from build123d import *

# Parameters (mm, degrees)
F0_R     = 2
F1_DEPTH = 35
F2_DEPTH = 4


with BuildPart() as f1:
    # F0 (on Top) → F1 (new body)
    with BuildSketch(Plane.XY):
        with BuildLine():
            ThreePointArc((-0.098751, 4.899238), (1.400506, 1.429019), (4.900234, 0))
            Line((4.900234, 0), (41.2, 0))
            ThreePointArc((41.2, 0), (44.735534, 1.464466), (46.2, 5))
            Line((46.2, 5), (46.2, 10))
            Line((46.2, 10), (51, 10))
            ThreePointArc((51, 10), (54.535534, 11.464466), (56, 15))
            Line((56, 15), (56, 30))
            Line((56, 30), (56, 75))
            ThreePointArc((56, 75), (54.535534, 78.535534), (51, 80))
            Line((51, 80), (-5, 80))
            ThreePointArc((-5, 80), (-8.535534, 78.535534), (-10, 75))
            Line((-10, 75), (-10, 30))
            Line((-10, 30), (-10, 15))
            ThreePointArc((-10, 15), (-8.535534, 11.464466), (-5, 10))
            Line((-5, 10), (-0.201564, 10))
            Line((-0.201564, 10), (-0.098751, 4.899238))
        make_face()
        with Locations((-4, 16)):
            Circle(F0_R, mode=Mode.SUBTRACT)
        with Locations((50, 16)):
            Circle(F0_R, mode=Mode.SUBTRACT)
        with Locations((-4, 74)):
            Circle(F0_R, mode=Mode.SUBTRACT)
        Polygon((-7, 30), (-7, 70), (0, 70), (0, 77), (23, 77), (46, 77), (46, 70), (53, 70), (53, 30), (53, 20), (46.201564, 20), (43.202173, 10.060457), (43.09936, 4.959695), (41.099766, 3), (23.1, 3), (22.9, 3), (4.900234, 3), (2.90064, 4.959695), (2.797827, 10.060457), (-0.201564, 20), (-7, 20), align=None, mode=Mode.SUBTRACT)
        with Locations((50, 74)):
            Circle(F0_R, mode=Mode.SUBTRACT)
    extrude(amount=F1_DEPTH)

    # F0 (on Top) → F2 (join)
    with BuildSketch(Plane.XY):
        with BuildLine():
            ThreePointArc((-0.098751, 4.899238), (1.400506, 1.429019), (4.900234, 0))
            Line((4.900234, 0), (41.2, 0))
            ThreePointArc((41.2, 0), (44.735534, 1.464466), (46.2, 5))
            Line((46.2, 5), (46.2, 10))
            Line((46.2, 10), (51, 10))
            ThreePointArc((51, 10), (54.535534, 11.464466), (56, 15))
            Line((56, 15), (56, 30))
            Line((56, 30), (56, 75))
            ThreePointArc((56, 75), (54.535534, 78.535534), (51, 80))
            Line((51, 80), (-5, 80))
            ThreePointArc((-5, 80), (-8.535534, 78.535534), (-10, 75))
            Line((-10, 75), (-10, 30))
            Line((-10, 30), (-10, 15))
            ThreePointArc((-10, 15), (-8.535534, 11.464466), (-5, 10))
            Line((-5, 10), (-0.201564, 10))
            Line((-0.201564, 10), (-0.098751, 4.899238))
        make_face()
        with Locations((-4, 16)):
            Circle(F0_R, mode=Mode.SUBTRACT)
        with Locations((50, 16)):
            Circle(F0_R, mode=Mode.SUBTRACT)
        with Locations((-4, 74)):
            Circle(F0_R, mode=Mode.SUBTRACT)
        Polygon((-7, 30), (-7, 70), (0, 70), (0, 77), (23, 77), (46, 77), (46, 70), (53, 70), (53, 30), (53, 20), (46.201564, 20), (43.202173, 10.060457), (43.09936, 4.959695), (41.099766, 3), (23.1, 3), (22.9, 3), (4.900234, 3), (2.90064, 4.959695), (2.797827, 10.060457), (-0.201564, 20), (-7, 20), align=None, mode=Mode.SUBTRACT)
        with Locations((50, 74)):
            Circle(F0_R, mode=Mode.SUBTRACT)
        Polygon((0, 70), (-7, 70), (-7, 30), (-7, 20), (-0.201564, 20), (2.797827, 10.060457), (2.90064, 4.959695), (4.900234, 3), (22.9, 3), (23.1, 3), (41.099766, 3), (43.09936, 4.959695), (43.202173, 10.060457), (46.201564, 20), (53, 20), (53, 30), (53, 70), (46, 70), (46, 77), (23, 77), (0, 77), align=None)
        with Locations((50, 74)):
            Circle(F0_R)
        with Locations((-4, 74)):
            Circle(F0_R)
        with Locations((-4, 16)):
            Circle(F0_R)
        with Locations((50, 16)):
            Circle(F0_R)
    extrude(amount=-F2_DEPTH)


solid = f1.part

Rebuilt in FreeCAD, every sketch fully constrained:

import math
import FreeCAD as App
import Part
import Sketcher

V = App.Vector


def add_polygon(sketch, points):
    """Adds a closed chain of lines whose ends are joined by coincident constraints."""
    first, n = sketch.GeometryCount, len(points)
    for a, b in zip(points, points[1:] + points[:1]):
        sketch.addGeometry(Part.LineSegment(App.Vector(*a, 0), App.Vector(*b, 0)), False)
    for i in range(n):
        sketch.addConstraint(Sketcher.Constraint("Coincident", first + i, 2, first + (i + 1) % n, 1))

doc = App.newDocument("Part")
params = doc.addObject("Spreadsheet::Sheet", "Params")
for row, (alias, value) in enumerate([
    ("sketch1_diameter", "4 mm"),
    ("sketch1_radius", "5 mm"),
    ("sketch1_width", "56 mm"),
    ("sketch1_width2", "7 mm"),
    ("sketch1_width3", "46 mm"),
    ("pad1_length", "35 mm"),
    ("sketch2_radius", "5 mm"),
    ("sketch2_width", "56 mm"),
    ("sketch2_height", "5 mm"),
    ("sketch2_height2", "60 mm"),
    ("sketch2_width2", "4.8 mm"),
    ("pad2_length", "4 mm"),
], start=1):
    params.set(f"A{row}", alias)
    params.set(f"B{row}", "=" + value)
    params.setAlias(f"B{row}", alias)

body = doc.addObject("PartDesign::Body", "Body")

# Sketch on XY plane
sketch1 = body.newObject("Sketcher::SketchObject", "Sketch")
sketch1.AttachmentSupport = (doc.getObject("XY_Plane"), [""])
sketch1.MapMode = "FlatFace"
sketch1.addGeometry(Part.ArcOfCircle(Part.Circle(V(4.900234, 5, 0), V(0, 0, 1), 5), math.radians(-178.84527), math.radians(-89.999999)), False)  # 0
sketch1.addGeometry(Part.LineSegment(V(4.900234, 0, 0), V(41.2, 0, 0)), False)  # 1
sketch1.addGeometry(Part.ArcOfCircle(Part.Circle(V(41.2, 5, 0), V(0, 0, 1), 5), math.radians(-90.000004), math.radians(0.000004)), False)  # 2
sketch1.addGeometry(Part.LineSegment(V(46.2, 5, 0), V(46.2, 10, 0)), False)  # 3
sketch1.addGeometry(Part.LineSegment(V(46.2, 10, 0), V(51, 10, 0)), False)  # 4
sketch1.addGeometry(Part.ArcOfCircle(Part.Circle(V(51, 15, 0), V(0, 0, 1), 5), math.radians(-90.000004), math.radians(0.000004)), False)  # 5
sketch1.addGeometry(Part.LineSegment(V(56, 15, 0), V(56, 75, 0)), False)  # 6
sketch1.addGeometry(Part.ArcOfCircle(Part.Circle(V(51, 75, 0), V(0, 0, 1), 5), math.radians(-0.000004), math.radians(90.000004)), False)  # 7
sketch1.addGeometry(Part.LineSegment(V(51, 80, 0), V(-5, 80, 0)), False)  # 8
sketch1.addGeometry(Part.ArcOfCircle(Part.Circle(V(-5, 75, 0), V(0, 0, 1), 5), math.radians(89.999996), math.radians(180.000004)), False)  # 9
sketch1.addGeometry(Part.LineSegment(V(-10, 75, 0), V(-10, 15, 0)), False)  # 10
sketch1.addGeometry(Part.ArcOfCircle(Part.Circle(V(-5, 15, 0), V(0, 0, 1), 5), math.radians(179.999996), math.radians(270.000004)), False)  # 11
sketch1.addGeometry(Part.LineSegment(V(-5, 10, 0), V(-0.201564, 10, 0)), False)  # 12
sketch1.addGeometry(Part.LineSegment(V(-0.201564, 10, 0), V(-0.098751, 4.899238, 0)), False)  # 13
sketch1.addGeometry(Part.Circle(V(-4, 16, 0), V(0, 0, 1), 2), False)  # 14
sketch1.addGeometry(Part.Circle(V(50, 16, 0), V(0, 0, 1), 2), False)  # 15
sketch1.addGeometry(Part.Circle(V(-4, 74, 0), V(0, 0, 1), 2), False)  # 16
add_polygon(sketch1, [(-7, 20), (-7, 70), (0, 70), (0, 77), (46, 77), (46, 70), (53, 70), (53, 20), (46.201564, 20), (43.202173, 10.060457), (43.09936, 4.959695), (41.099766, 3), (4.900234, 3), (2.90064, 4.959695), (2.797827, 10.060457), (-0.201564, 20)])  # lines 17-32
sketch1.addGeometry(Part.Circle(V(50, 74, 0), V(0, 0, 1), 2), False)  # 33
sketch1.addConstraint([
    Sketcher.Constraint("Tangent", 0, 2, 1, 1),
    Sketcher.Constraint("Tangent", 1, 2, 2, 1),
    Sketcher.Constraint("Tangent", 2, 2, 3, 1),
    Sketcher.Constraint("Coincident", 3, 2, 4, 1),
    Sketcher.Constraint("Tangent", 4, 2, 5, 1),
    Sketcher.Constraint("Tangent", 5, 2, 6, 1),
    Sketcher.Constraint("Tangent", 6, 2, 7, 1),
    Sketcher.Constraint("Tangent", 7, 2, 8, 1),
    Sketcher.Constraint("Tangent", 8, 2, 9, 1),
    Sketcher.Constraint("Tangent", 9, 2, 10, 1),
    Sketcher.Constraint("Tangent", 10, 2, 11, 1),
    Sketcher.Constraint("Tangent", 11, 2, 12, 1),
    Sketcher.Constraint("Coincident", 12, 2, 13, 1),
    Sketcher.Constraint("Tangent", 13, 2, 0, 1),
    Sketcher.Constraint("Horizontal", 1),
    Sketcher.Constraint("Vertical", 3),
    Sketcher.Constraint("Horizontal", 4),
    Sketcher.Constraint("Vertical", 6),
    Sketcher.Constraint("Horizontal", 8),
    Sketcher.Constraint("Vertical", 10),
    Sketcher.Constraint("Horizontal", 12),
    Sketcher.Constraint("Vertical", 17),
    Sketcher.Constraint("Horizontal", 18),
    Sketcher.Constraint("Vertical", 19),
    Sketcher.Constraint("Horizontal", 20),
    Sketcher.Constraint("Vertical", 21),
    Sketcher.Constraint("Horizontal", 22),
    Sketcher.Constraint("Vertical", 23),
    Sketcher.Constraint("Horizontal", 24),
    Sketcher.Constraint("Horizontal", 28),
    Sketcher.Constraint("Horizontal", 32),
    Sketcher.Constraint("Equal", 0, 2),
    Sketcher.Constraint("Equal", 2, 5),
    Sketcher.Constraint("Equal", 5, 7),
    Sketcher.Constraint("Equal", 7, 9),
    Sketcher.Constraint("Equal", 9, 11),
    Sketcher.Constraint("Equal", 14, 15),
    Sketcher.Constraint("Equal", 15, 16),
    Sketcher.Constraint("Equal", 16, 33),
    Sketcher.Constraint("PointOnObject", 0, 2, -1),
    Sketcher.Constraint("PointOnObject", 18, 2, -2),
    Sketcher.Constraint("Parallel", 13, 30),
    Sketcher.Constraint("Horizontal", 5, 3, 11, 3),
    Sketcher.Constraint("Horizontal", 14, 3, 15, 3),
    Sketcher.Constraint("Horizontal", 16, 3, 33, 3),
    Sketcher.Constraint("Horizontal", 18, 2, 21, 2),
    Sketcher.Constraint("Horizontal", 26, 2, 29, 2),
    Sketcher.Constraint("Horizontal", 25, 2, 30, 2),
    Sketcher.Constraint("Horizontal", 24, 2, 31, 2),
    Sketcher.Constraint("Vertical", 14, 3, 16, 3),
    Sketcher.Constraint("Vertical", 15, 3, 33, 3),
    Sketcher.Constraint("Vertical", 0, 2, 28, 2),
    Sketcher.Constraint("Vertical", 12, 2, 31, 2),
    Sketcher.Constraint("Equal", 18, 22),
    Sketcher.Constraint("Equal", 24, 32),
    Sketcher.Constraint("Equal", 22, 19),
    Sketcher.Constraint("Equal", 13, 26),
    Sketcher.Constraint("Equal", 27, 29),
    Sketcher.Constraint("Equal", 26, 30),
    Sketcher.Constraint("Equal", 25, 31),
    Sketcher.Constraint("Diameter", 14, 4.0),
    Sketcher.Constraint("Radius", 0, 5.0),
    Sketcher.Constraint("DistanceX", 8, 2, 8, 1, 56.0),
    Sketcher.Constraint("DistanceX", 18, 1, 18, 2, 7.0),
    Sketcher.Constraint("DistanceX", 20, 1, 20, 2, 46.0),
    Sketcher.Constraint("DistanceY", 3, 1, 3, 2, 5.0),
    Sketcher.Constraint("DistanceY", 6, 1, 6, 2, 60.0),
    Sketcher.Constraint("DistanceY", 17, 1, 17, 2, 50.0),
    Sketcher.Constraint("DistanceX", 4, 1, 4, 2, 4.8),
    Sketcher.Constraint("DistanceX", -1, 1, 5, 3, 51.0),
    Sketcher.Constraint("DistanceX", 14, 3, -1, 1, 4.0),
    Sketcher.Constraint("DistanceY", -1, 1, 14, 3, 16.0),
    Sketcher.Constraint("DistanceX", -1, 1, 15, 3, 50.0),
    Sketcher.Constraint("DistanceY", -1, 1, 16, 3, 74.0),
    Sketcher.Constraint("DistanceY", -1, 1, 17, 2, 70.0),
    Sketcher.Constraint("DistanceY", -1, 1, 27, 2, 3.0),
    Sketcher.Constraint("Distance", 13, 5.101798),
    Sketcher.Constraint("DistanceX", 1, 1, 1, 2, 36.299766),
    Sketcher.Constraint("DistanceX", -1, 1, 26, 2, 43.09936),
    Sketcher.Constraint("DistanceY", 13, 2, 30, 2, 5.161219),
])
sketch1.setExpression("Constraints[76]", "Params.sketch1_diameter")
sketch1.setExpression("Constraints[77]", "Params.sketch1_radius")
sketch1.setExpression("Constraints[78]", "Params.sketch1_width")
sketch1.setExpression("Constraints[79]", "Params.sketch1_width2")
sketch1.setExpression("Constraints[80]", "Params.sketch1_width3")
pad1 = body.newObject("PartDesign::Pad", "Pad")
pad1.Profile = sketch1
pad1.setExpression("Length", "Params.pad1_length")

# Sketch on XY plane
sketch2 = body.newObject("Sketcher::SketchObject", "Sketch001")
sketch2.AttachmentSupport = (doc.getObject("XY_Plane"), [""])
sketch2.MapMode = "FlatFace"
sketch2.addGeometry([
    Part.ArcOfCircle(Part.Circle(V(4.900234, 5, 0), V(0, 0, 1), 5), math.radians(-178.84527), math.radians(-89.999999)),  # 0
    Part.LineSegment(V(4.900234, 0, 0), V(41.2, 0, 0)),  # 1
    Part.ArcOfCircle(Part.Circle(V(41.2, 5, 0), V(0, 0, 1), 5), math.radians(-90.000004), math.radians(0.000004)),  # 2
    Part.LineSegment(V(46.2, 5, 0), V(46.2, 10, 0)),  # 3
    Part.LineSegment(V(46.2, 10, 0), V(51, 10, 0)),  # 4
    Part.ArcOfCircle(Part.Circle(V(51, 15, 0), V(0, 0, 1), 5), math.radians(-90.000004), math.radians(0.000004)),  # 5
    Part.LineSegment(V(56, 15, 0), V(56, 75, 0)),  # 6
    Part.ArcOfCircle(Part.Circle(V(51, 75, 0), V(0, 0, 1), 5), math.radians(-0.000004), math.radians(90.000004)),  # 7
    Part.LineSegment(V(51, 80, 0), V(-5, 80, 0)),  # 8
    Part.ArcOfCircle(Part.Circle(V(-5, 75, 0), V(0, 0, 1), 5), math.radians(89.999996), math.radians(180.000004)),  # 9
    Part.LineSegment(V(-10, 75, 0), V(-10, 15, 0)),  # 10
    Part.ArcOfCircle(Part.Circle(V(-5, 15, 0), V(0, 0, 1), 5), math.radians(179.999996), math.radians(270.000004)),  # 11
    Part.LineSegment(V(-5, 10, 0), V(-0.201564, 10, 0)),  # 12
    Part.LineSegment(V(-0.201564, 10, 0), V(-0.098751, 4.899238, 0)),  # 13
], False)
sketch2.addConstraint([
    Sketcher.Constraint("Tangent", 0, 2, 1, 1),
    Sketcher.Constraint("Tangent", 1, 2, 2, 1),
    Sketcher.Constraint("Tangent", 2, 2, 3, 1),
    Sketcher.Constraint("Coincident", 3, 2, 4, 1),
    Sketcher.Constraint("Tangent", 4, 2, 5, 1),
    Sketcher.Constraint("Tangent", 5, 2, 6, 1),
    Sketcher.Constraint("Tangent", 6, 2, 7, 1),
    Sketcher.Constraint("Tangent", 7, 2, 8, 1),
    Sketcher.Constraint("Tangent", 8, 2, 9, 1),
    Sketcher.Constraint("Tangent", 9, 2, 10, 1),
    Sketcher.Constraint("Tangent", 10, 2, 11, 1),
    Sketcher.Constraint("Tangent", 11, 2, 12, 1),
    Sketcher.Constraint("Coincident", 12, 2, 13, 1),
    Sketcher.Constraint("Tangent", 13, 2, 0, 1),
    Sketcher.Constraint("Horizontal", 1),
    Sketcher.Constraint("Vertical", 3),
    Sketcher.Constraint("Horizontal", 4),
    Sketcher.Constraint("Vertical", 6),
    Sketcher.Constraint("Horizontal", 8),
    Sketcher.Constraint("Vertical", 10),
    Sketcher.Constraint("Horizontal", 12),
    Sketcher.Constraint("Equal", 0, 2),
    Sketcher.Constraint("Equal", 2, 5),
    Sketcher.Constraint("Equal", 5, 7),
    Sketcher.Constraint("Equal", 7, 9),
    Sketcher.Constraint("Equal", 9, 11),
    Sketcher.Constraint("PointOnObject", 0, 2, -1),
    Sketcher.Constraint("Horizontal", 5, 3, 11, 3),
    Sketcher.Constraint("Radius", 0, 5.0),
    Sketcher.Constraint("DistanceX", 8, 2, 8, 1, 56.0),
    Sketcher.Constraint("DistanceY", 3, 1, 3, 2, 5.0),
    Sketcher.Constraint("DistanceY", 6, 1, 6, 2, 60.0),
    Sketcher.Constraint("DistanceX", 4, 1, 4, 2, 4.8),
    Sketcher.Constraint("DistanceX", -1, 1, 5, 3, 51.0),
    Sketcher.Constraint("Distance", 13, 5.101798),
    Sketcher.Constraint("DistanceX", 1, 1, 1, 2, 36.299766),
])
sketch2.setExpression("Constraints[28]", "Params.sketch2_radius")
sketch2.setExpression("Constraints[29]", "Params.sketch2_width")
sketch2.setExpression("Constraints[30]", "Params.sketch2_height")
sketch2.setExpression("Constraints[31]", "Params.sketch2_height2")
sketch2.setExpression("Constraints[32]", "Params.sketch2_width2")
pad2 = body.newObject("PartDesign::Pad", "Pad001")
pad2.Profile = sketch2
pad2.setExpression("Length", "Params.pad2_length")
pad2.Reversed = True

doc.recompute()
